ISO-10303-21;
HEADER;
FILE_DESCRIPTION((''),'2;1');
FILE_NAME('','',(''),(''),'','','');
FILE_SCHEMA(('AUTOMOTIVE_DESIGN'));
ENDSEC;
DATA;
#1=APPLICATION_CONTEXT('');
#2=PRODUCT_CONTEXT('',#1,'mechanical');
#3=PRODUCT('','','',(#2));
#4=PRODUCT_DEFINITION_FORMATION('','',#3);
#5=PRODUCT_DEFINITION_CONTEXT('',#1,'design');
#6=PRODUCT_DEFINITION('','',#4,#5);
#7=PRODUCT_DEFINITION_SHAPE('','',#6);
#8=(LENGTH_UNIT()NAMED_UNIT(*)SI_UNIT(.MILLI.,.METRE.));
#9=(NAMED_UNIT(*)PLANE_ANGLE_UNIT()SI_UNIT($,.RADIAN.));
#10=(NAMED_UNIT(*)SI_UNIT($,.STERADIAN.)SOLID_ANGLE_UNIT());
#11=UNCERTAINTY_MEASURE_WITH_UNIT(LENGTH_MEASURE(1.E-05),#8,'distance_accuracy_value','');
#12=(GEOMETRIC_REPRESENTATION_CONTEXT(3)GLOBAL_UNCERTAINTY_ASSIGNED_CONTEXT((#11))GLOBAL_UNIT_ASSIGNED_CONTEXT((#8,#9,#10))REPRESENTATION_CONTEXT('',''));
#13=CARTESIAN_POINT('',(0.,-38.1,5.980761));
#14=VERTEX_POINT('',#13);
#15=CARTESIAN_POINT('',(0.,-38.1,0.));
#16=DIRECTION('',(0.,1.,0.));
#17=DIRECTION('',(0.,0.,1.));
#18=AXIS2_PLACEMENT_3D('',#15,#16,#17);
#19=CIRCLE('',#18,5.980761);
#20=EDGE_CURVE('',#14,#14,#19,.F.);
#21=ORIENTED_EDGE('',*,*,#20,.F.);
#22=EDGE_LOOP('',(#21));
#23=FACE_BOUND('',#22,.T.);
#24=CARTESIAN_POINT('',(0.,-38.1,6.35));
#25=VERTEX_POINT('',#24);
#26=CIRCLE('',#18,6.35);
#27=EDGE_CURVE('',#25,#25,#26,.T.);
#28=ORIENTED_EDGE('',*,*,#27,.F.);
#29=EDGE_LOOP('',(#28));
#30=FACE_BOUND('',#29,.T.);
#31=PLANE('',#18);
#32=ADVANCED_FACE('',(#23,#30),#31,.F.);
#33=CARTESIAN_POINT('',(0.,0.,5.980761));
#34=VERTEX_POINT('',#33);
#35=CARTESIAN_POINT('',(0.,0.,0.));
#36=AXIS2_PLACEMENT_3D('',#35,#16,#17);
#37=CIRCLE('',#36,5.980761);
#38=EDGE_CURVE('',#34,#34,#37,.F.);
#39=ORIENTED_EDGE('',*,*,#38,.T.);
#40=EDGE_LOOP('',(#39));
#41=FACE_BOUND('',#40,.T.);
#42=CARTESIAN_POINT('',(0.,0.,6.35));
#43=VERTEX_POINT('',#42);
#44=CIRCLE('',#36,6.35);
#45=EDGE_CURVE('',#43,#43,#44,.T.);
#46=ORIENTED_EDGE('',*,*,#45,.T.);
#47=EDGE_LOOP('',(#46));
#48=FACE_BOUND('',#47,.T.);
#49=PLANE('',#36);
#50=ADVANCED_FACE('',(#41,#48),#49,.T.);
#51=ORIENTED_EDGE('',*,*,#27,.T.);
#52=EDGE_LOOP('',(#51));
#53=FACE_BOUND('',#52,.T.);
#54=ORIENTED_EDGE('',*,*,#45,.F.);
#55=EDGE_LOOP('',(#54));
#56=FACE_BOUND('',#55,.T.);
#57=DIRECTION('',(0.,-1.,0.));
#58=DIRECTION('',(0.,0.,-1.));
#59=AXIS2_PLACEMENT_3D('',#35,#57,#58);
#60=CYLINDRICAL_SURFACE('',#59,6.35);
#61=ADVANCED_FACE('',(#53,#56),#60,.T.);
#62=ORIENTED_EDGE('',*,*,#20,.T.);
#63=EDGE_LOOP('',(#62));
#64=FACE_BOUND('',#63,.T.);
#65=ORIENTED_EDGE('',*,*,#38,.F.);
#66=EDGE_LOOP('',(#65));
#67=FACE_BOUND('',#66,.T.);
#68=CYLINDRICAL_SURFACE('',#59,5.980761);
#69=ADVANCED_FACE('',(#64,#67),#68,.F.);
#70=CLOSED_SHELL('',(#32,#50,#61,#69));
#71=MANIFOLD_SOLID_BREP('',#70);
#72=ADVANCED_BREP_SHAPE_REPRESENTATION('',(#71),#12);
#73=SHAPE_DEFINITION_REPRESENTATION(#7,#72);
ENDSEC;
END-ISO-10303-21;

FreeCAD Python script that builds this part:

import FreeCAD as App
import Part
import Sketcher
from FreeCAD import Vector
Q = App.Units.Quantity

doc = App.newDocument("Part")
body = doc.addObject("PartDesign::Body", "Body")

# Sketch on XZ plane
sketch1 = body.newObject("Sketcher::SketchObject", "Sketch")
sketch1.AttachmentSupport = (doc.getObject("XZ_Plane"), [""])
sketch1.MapMode = "FlatFace"
sketch1.addGeometry([
    Part.Circle(Vector(0, 0, 0), Vector(0, 0, 1), 6),
    Part.Circle(Vector(0, 0, 0), Vector(0, 0, 1), 6),
], False)
sketch1.addConstraint([
    Sketcher.Constraint("Coincident", 0, 3, -1, 1),
    Sketcher.Constraint("Coincident", 1, 3, -1, 1),
    Sketcher.Constraint("Diameter", 0, Q("0.5 in")),
    Sketcher.Constraint("Diameter", 1, Q("11.961522 mm")),
])

# Sketch on XY plane
sketch2 = body.newObject("Sketcher::SketchObject", "Sketch001")
sketch2.AttachmentSupport = (doc.getObject("XY_Plane"), [""])
sketch2.MapMode = "FlatFace"
sketch2.addGeometry(Part.LineSegment(Vector(0, 0, 0), Vector(0, -38, 0)), False)
sketch2.addConstraint([
    Sketcher.Constraint("Vertical", 0),
    Sketcher.Constraint("Coincident", 0, 1, -1, 1),
    Sketcher.Constraint("DistanceY", 0, 2, 0, 1, Q("1.5 in")),
])
doc.recompute()

additivepipe = body.newObject("PartDesign::AdditivePipe", "AdditivePipe")
additivepipe.Profile = sketch1
additivepipe.Spine = (sketch2, ["Edge1"])

doc.recompute()
